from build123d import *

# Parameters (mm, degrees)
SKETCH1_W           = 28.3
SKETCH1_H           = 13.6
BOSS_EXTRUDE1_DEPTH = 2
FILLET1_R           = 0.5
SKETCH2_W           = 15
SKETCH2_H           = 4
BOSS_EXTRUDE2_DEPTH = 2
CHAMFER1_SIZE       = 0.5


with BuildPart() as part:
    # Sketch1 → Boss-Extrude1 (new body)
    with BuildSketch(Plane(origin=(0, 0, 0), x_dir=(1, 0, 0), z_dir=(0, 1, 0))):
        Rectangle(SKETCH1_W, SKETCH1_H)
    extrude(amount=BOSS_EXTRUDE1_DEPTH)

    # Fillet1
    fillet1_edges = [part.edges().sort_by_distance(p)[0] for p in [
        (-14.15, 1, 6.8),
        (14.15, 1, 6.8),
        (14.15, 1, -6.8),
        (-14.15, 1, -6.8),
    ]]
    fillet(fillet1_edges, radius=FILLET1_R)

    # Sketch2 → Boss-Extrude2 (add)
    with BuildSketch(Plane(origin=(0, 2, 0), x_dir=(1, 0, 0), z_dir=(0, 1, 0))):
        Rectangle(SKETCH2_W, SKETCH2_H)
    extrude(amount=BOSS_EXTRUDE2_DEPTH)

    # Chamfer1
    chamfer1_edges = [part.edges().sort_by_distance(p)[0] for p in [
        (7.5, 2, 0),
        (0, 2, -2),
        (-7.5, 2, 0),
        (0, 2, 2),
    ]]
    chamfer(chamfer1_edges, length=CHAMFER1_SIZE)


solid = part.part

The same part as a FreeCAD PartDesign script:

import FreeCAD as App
import Part
import Sketcher


def edges_at(feature, points):
    """Names of the edges that pass closest to the given points."""
    edges = feature.Shape.Edges
    near = lambda p: min(range(len(edges)), key=lambda i: edges[i].distToShape(Part.Vertex(*p))[0])
    return sorted({f"Edge{near(p) + 1}" for p in points})


def add_polygon(sketch, points):
    """Adds a closed chain of lines whose ends are joined by coincident constraints."""
    first, n = sketch.GeometryCount, len(points)
    for a, b in zip(points, points[1:] + points[:1]):
        sketch.addGeometry(Part.LineSegment(App.Vector(*a, 0), App.Vector(*b, 0)), False)
    for i in range(n):
        sketch.addConstraint(Sketcher.Constraint("Coincident", first + i, 2, first + (i + 1) % n, 1))

doc = App.newDocument("Part")
params = doc.addObject("Spreadsheet::Sheet", "Params")
for row, (alias, value) in enumerate([
    ("sketch1_width", "28.3 mm"),
    ("sketch1_height", "13.6 mm"),
    ("pad1_length", "2 mm"),
    ("fillet_radius", "0.5 mm"),
    ("sketch2_width", "15 mm"),
    ("sketch2_height", "4 mm"),
    ("pad2_length", "2 mm"),
    ("chamfer_size", "0.5 mm"),
], start=1):
    params.set(f"A{row}", alias)
    params.set(f"B{row}", "=" + value)
    params.setAlias(f"B{row}", alias)

body = doc.addObject("PartDesign::Body", "Body")

sketch1 = body.newObject("Sketcher::SketchObject", "Sketch")
sketch1.AttachmentSupport = (doc.getObject("XZ_Plane"), [""])
sketch1.MapMode = "FlatFace"
add_polygon(sketch1, [(-14, -7), (-14, 7), (14, 7), (14, -7)])
sketch1.addConstraint([
    Sketcher.Constraint("Vertical", 0),
    Sketcher.Constraint("Horizontal", 1),
    Sketcher.Constraint("Vertical", 2),
    Sketcher.Constraint("Horizontal", 3),
    Sketcher.Constraint("Symmetric", 0, 2, 2, 2, -1, 1),
    Sketcher.Constraint("DistanceX", 1, 1, 1, 2, 28.3),
    Sketcher.Constraint("DistanceY", 0, 1, 0, 2, 13.6),
])
sketch1.setExpression("Constraints[9]", "Params.sketch1_width")
sketch1.setExpression("Constraints[10]", "Params.sketch1_height")
pad1 = body.newObject("PartDesign::Pad", "Pad")
pad1.Profile = sketch1
pad1.setExpression("Length", "Params.pad1_length")
pad1.Reversed = True
doc.recompute()

fillet = body.newObject("PartDesign::Fillet", "Fillet")
fillet.Base = (pad1, edges_at(pad1, [
    (-14.15, 1, 6.8),
    (14.15, 1, 6.8),
    (14.15, 1, -6.8),
    (-14.15, 1, -6.8),
]))
fillet.setExpression("Radius", "Params.fillet_radius")

sketch2 = body.newObject("Sketcher::SketchObject", "Sketch001")
sketch2.AttachmentSupport = (doc.getObject("XZ_Plane"), [""])
sketch2.MapMode = "FlatFace"
sketch2.AttachmentOffset = App.Placement(App.Vector(0, 0, -2), App.Rotation())
add_polygon(sketch2, [(-7.5, -2), (-7.5, 2), (7.5, 2), (7.5, -2)])
sketch2.addConstraint([
    Sketcher.Constraint("Vertical", 0),
    Sketcher.Constraint("Horizontal", 1),
    Sketcher.Constraint("Vertical", 2),
    Sketcher.Constraint("Horizontal", 3),
    Sketcher.Constraint("Symmetric", 0, 2, 2, 2, -1, 1),
    Sketcher.Constraint("DistanceX", 1, 1, 1, 2, 15.0),
    Sketcher.Constraint("DistanceY", 0, 1, 0, 2, 4.0),
])
sketch2.setExpression("Constraints[9]", "Params.sketch2_width")
sketch2.setExpression("Constraints[10]", "Params.sketch2_height")
pad2 = body.newObject("PartDesign::Pad", "Pad001")
pad2.Profile = sketch2
pad2.setExpression("Length", "Params.pad2_length")
pad2.Reversed = True
doc.recompute()

chamfer = body.newObject("PartDesign::Chamfer", "Chamfer")
chamfer.Base = (pad2, edges_at(pad2, [
    (7.5, 2, 0),
    (0, 2, -2),
    (-7.5, 2, 0),
    (0, 2, 2),
]))
chamfer.setExpression("Size", "Params.chamfer_size")

doc.recompute()
